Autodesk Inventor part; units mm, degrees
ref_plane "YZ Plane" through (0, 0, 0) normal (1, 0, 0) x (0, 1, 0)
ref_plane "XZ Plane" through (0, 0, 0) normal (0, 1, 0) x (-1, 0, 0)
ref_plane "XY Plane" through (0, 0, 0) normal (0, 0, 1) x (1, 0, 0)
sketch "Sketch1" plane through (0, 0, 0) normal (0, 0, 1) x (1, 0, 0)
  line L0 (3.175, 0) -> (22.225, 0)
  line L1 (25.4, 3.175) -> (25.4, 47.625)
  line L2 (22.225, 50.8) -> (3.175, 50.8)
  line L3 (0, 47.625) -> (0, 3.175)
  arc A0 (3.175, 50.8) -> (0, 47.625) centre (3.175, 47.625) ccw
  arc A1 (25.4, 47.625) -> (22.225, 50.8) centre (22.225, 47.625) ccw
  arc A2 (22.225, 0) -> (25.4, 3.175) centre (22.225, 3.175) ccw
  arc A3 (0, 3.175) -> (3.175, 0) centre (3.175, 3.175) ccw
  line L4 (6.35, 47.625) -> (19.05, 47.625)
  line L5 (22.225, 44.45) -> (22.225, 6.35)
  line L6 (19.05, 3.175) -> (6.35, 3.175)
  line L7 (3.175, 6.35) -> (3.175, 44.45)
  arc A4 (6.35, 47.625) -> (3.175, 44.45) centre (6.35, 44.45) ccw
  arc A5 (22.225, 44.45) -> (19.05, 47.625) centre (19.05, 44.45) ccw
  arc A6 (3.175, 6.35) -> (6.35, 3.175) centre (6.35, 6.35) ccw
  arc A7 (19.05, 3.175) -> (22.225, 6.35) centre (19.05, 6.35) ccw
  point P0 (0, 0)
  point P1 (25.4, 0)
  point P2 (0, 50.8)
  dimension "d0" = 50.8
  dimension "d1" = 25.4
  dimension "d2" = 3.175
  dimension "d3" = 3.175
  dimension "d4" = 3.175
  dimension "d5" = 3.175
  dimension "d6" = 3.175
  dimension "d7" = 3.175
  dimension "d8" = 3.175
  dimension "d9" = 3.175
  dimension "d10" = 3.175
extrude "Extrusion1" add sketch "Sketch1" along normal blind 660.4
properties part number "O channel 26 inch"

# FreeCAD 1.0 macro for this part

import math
import FreeCAD as App
import Part
import Sketcher
from FreeCAD import Vector
Q = App.Units.Quantity

doc = App.newDocument("Part")
body = doc.addObject("PartDesign::Body", "Body")

# Sketch on XY plane
sketch1 = body.newObject("Sketcher::SketchObject", "Sketch")
sketch1.AttachmentSupport = (doc.getObject("XY_Plane"), [""])
sketch1.MapMode = "FlatFace"
sketch1.addGeometry([
    Part.ArcOfCircle(Part.Circle(Vector(3.2, 3.2, 0), Vector(0, 0, 1), 3.2), math.radians(180), math.radians(270)),  # 0
    Part.LineSegment(Vector(3.2, 0, 0), Vector(22.2, 0, 0)),  # 1
    Part.ArcOfCircle(Part.Circle(Vector(22.2, 3.2, 0), Vector(0, 0, 1), 3.2), math.radians(-90), math.radians(0)),  # 2
    Part.LineSegment(Vector(25.4, 3.2, 0), Vector(25.4, 47.6, 0)),  # 3
    Part.ArcOfCircle(Part.Circle(Vector(22.2, 47.6, 0), Vector(0, 0, 1), 3.2), math.radians(0), math.radians(90)),  # 4
    Part.LineSegment(Vector(22.2, 50.8, 0), Vector(3.2, 50.8, 0)),  # 5
    Part.ArcOfCircle(Part.Circle(Vector(3.2, 47.6, 0), Vector(0, 0, 1), 3.2), math.radians(90), math.radians(180)),  # 6
    Part.LineSegment(Vector(0, 47.6, 0), Vector(0, 3.2, 0)),  # 7
    Part.ArcOfCircle(Part.Circle(Vector(6.3, 44.5, 0), Vector(0, 0, 1), 3.2), math.radians(90), math.radians(180)),  # 8
    Part.LineSegment(Vector(6.3, 47.6, 0), Vector(19.1, 47.6, 0)),  # 9
    Part.ArcOfCircle(Part.Circle(Vector(19.1, 44.5, 0), Vector(0, 0, 1), 3.2), math.radians(0), math.radians(90)),  # 10
    Part.LineSegment(Vector(22.2, 44.5, 0), Vector(22.2, 6.3, 0)),  # 11
    Part.ArcOfCircle(Part.Circle(Vector(19.1, 6.3, 0), Vector(0, 0, 1), 3.2), math.radians(-90), math.radians(0)),  # 12
    Part.LineSegment(Vector(19.1, 3.2, 0), Vector(6.3, 3.2, 0)),  # 13
    Part.ArcOfCircle(Part.Circle(Vector(6.3, 6.3, 0), Vector(0, 0, 1), 3.2), math.radians(180), math.radians(270)),  # 14
    Part.LineSegment(Vector(3.2, 6.3, 0), Vector(3.2, 44.5, 0)),  # 15
], False)
sketch1.addConstraint([
    Sketcher.Constraint("Tangent", 0, 2, 1, 1),
    Sketcher.Constraint("Tangent", 1, 2, 2, 1),
    Sketcher.Constraint("Tangent", 2, 2, 3, 1),
    Sketcher.Constraint("Tangent", 3, 2, 4, 1),
    Sketcher.Constraint("Tangent", 4, 2, 5, 1),
    Sketcher.Constraint("Tangent", 5, 2, 6, 1),
    Sketcher.Constraint("Tangent", 6, 2, 7, 1),
    Sketcher.Constraint("Tangent", 7, 2, 0, 1),
    Sketcher.Constraint("Tangent", 8, 1, 9, 1),
    Sketcher.Constraint("Tangent", 9, 2, 10, 2),
    Sketcher.Constraint("Tangent", 10, 1, 11, 1),
    Sketcher.Constraint("Tangent", 11, 2, 12, 2),
    Sketcher.Constraint("Tangent", 12, 1, 13, 1),
    Sketcher.Constraint("Tangent", 13, 2, 14, 2),
    Sketcher.Constraint("Tangent", 14, 1, 15, 1),
    Sketcher.Constraint("Tangent", 15, 2, 8, 2),
    Sketcher.Constraint("Horizontal", 1),
    Sketcher.Constraint("Vertical", 3),
    Sketcher.Constraint("Horizontal", 5),
    Sketcher.Constraint("Vertical", 7),
    Sketcher.Constraint("Horizontal", 9),
    Sketcher.Constraint("Vertical", 11),
    Sketcher.Constraint("Horizontal", 13),
    Sketcher.Constraint("Vertical", 15),
    Sketcher.Constraint("Equal", 0, 2),
    Sketcher.Constraint("Equal", 2, 4),
    Sketcher.Constraint("Equal", 4, 6),
    Sketcher.Constraint("Equal", 6, 8),
    Sketcher.Constraint("Equal", 8, 10),
    Sketcher.Constraint("Equal", 10, 12),
    Sketcher.Constraint("Equal", 12, 14),
    Sketcher.Constraint("PointOnObject", 0, 2, -1),
    Sketcher.Constraint("PointOnObject", 6, 2, -2),
    Sketcher.Constraint("Horizontal", 6, 2, 8, 1),
    Sketcher.Constraint("Horizontal", 7, 2, 12, 1),
    Sketcher.Constraint("Vertical", 4, 2, 10, 1),
    Sketcher.Constraint("Vertical", 5, 2, 14, 1),
    Sketcher.Constraint("DistanceX", -1, 1, 2, 2, Q("1 in")),
    Sketcher.Constraint("DistanceY", -1, 1, 4, 2, Q("2 in")),
    Sketcher.Constraint("Radius", 0, Q("0.125 in")),
])
pad1 = body.newObject("PartDesign::Pad", "Pad")
pad1.Profile = sketch1
pad1.Length = Q("26 in")

doc.recompute()
